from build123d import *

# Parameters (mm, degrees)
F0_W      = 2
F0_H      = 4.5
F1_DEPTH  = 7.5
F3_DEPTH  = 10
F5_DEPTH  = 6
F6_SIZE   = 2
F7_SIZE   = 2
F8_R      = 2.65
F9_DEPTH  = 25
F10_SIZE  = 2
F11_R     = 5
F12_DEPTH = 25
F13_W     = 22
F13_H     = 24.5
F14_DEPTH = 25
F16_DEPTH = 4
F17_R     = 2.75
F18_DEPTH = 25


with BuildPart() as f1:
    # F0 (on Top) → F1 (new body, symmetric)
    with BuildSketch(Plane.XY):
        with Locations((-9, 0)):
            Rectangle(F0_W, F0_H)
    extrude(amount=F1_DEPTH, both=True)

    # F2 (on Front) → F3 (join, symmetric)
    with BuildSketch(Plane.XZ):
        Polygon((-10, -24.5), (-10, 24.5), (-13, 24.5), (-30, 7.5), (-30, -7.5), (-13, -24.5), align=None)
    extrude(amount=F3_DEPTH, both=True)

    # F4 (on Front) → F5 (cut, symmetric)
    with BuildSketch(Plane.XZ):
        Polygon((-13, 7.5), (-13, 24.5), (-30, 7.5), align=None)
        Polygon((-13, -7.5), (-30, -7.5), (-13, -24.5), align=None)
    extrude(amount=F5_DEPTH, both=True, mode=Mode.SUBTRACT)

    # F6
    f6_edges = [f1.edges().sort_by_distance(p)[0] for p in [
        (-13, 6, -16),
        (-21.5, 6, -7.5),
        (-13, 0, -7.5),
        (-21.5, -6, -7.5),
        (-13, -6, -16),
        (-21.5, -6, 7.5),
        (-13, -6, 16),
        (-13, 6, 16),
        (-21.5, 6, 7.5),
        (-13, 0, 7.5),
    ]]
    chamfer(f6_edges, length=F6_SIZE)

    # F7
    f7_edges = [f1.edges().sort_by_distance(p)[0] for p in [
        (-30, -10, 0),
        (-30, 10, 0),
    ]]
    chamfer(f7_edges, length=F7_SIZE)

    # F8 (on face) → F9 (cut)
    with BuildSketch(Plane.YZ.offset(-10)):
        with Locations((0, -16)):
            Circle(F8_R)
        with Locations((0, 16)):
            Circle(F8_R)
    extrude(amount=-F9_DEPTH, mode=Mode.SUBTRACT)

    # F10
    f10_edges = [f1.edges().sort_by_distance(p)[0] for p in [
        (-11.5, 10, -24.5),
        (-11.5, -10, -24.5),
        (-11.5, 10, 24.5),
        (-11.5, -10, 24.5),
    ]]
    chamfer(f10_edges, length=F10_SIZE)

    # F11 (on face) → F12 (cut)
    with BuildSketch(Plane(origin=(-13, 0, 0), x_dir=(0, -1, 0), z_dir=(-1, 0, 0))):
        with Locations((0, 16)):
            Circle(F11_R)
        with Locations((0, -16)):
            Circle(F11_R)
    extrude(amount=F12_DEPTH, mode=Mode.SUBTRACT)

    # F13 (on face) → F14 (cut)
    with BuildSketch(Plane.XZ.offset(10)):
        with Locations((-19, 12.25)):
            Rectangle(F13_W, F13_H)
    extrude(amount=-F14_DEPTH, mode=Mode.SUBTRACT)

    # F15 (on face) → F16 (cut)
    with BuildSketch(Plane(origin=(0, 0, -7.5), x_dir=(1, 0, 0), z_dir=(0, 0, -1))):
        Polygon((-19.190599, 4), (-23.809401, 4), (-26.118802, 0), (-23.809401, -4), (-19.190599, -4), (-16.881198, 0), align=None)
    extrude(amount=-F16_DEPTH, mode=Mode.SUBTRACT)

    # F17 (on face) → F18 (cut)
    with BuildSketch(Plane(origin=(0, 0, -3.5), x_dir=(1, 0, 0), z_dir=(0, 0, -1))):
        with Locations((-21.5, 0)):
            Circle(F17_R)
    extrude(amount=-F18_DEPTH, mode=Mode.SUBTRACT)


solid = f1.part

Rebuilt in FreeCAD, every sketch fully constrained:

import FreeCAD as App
import Part
import Sketcher
Q = App.Units.Quantity


def edges_at(feature, points):
    """Names of the edges that pass closest to the given points."""
    edges = feature.Shape.Edges
    near = lambda p: min(range(len(edges)), key=lambda i: edges[i].distToShape(Part.Vertex(*p))[0])
    return sorted({f"Edge{near(p) + 1}" for p in points})

doc = App.newDocument("Part")
body = doc.addObject("PartDesign::Body", "Body")

# Sketch on XY plane
sketch1 = doc.addObject("Sketcher::SketchObject", "Sketch")
body.addObject(sketch1)
sketch1.AttachmentSupport = (doc.XY_Plane, [""])
sketch1.MapMode = "FlatFace"
sketch1.addGeometry([
    Part.LineSegment(App.Vector(-10, 2.2, 0), App.Vector(-10, -2.2, 0)),
    Part.LineSegment(App.Vector(-10, -2.2, 0), App.Vector(-8, -2.2, 0)),
    Part.LineSegment(App.Vector(-8, -2.2, 0), App.Vector(-8, 2.2, 0)),
    Part.LineSegment(App.Vector(-8, 2.2, 0), App.Vector(-10, 2.2, 0)),
], False)
sketch1.addConstraint([
    Sketcher.Constraint("Coincident", 0, 2, 1, 1),
    Sketcher.Constraint("Coincident", 1, 2, 2, 1),
    Sketcher.Constraint("Coincident", 2, 2, 3, 1),
    Sketcher.Constraint("Coincident", 3, 2, 0, 1),
    Sketcher.Constraint("Vertical", 0),
    Sketcher.Constraint("Horizontal", 1),
    Sketcher.Constraint("Vertical", 2),
    Sketcher.Constraint("Horizontal", 3),
    Sketcher.Constraint("DistanceX", 1, 1, 1, 2, Q("2 mm")),
    Sketcher.Constraint("DistanceY", 0, 2, 0, 1, Q("4.5 mm")),
    Sketcher.Constraint("DistanceX", 0, 2, -1, 1, Q("10 mm")),
    Sketcher.Constraint("DistanceY", 0, 2, -1, 1, Q("2.25 mm")),
])
pad1 = doc.addObject("PartDesign::Pad", "Pad")
body.addObject(pad1)
pad1.Profile = sketch1
pad1.Length = 15
pad1.Midplane = True

# Sketch on XZ plane
sketch2 = doc.addObject("Sketcher::SketchObject", "Sketch001")
body.addObject(sketch2)
sketch2.AttachmentSupport = (doc.XZ_Plane, [""])
sketch2.MapMode = "FlatFace"
sketch2.addGeometry([
    Part.LineSegment(App.Vector(-10, -24.5, 0), App.Vector(-10, 24.5, 0)),  # 0
    Part.LineSegment(App.Vector(-10, 24.5, 0), App.Vector(-13, 24.5, 0)),  # 1
    Part.LineSegment(App.Vector(-13, 24.5, 0), App.Vector(-30, 7.5, 0)),  # 2
    Part.LineSegment(App.Vector(-30, 7.5, 0), App.Vector(-30, -7.5, 0)),  # 3
    Part.LineSegment(App.Vector(-30, -7.5, 0), App.Vector(-13, -24.5, 0)),  # 4
    Part.LineSegment(App.Vector(-13, -24.5, 0), App.Vector(-10, -24.5, 0)),  # 5
], False)
sketch2.addConstraint([
    Sketcher.Constraint("Coincident", 0, 2, 1, 1),
    Sketcher.Constraint("Coincident", 1, 2, 2, 1),
    Sketcher.Constraint("Coincident", 2, 2, 3, 1),
    Sketcher.Constraint("Coincident", 3, 2, 4, 1),
    Sketcher.Constraint("Coincident", 4, 2, 5, 1),
    Sketcher.Constraint("Coincident", 5, 2, 0, 1),
    Sketcher.Constraint("Vertical", 0),
    Sketcher.Constraint("Horizontal", 1),
    Sketcher.Constraint("Vertical", 3),
    Sketcher.Constraint("Horizontal", 5),
    Sketcher.Constraint("Symmetric", 1, 2, 4, 2, -1),
    Sketcher.Constraint("Perpendicular", 2, 4),
    Sketcher.Constraint("Equal", 2, 4),
    Sketcher.Constraint("DistanceX", 1, 2, 1, 1, Q("3 mm")),
    Sketcher.Constraint("DistanceY", 0, 1, 0, 2, Q("49 mm")),
    Sketcher.Constraint("DistanceY", 3, 2, 3, 1, Q("15 mm")),
    Sketcher.Constraint("DistanceX", 0, 2, -1, 1, Q("10 mm")),
])
pad2 = doc.addObject("PartDesign::Pad", "Pad001")
body.addObject(pad2)
pad2.Profile = sketch2
pad2.Length = 20
pad2.Midplane = True

# Sketch on XZ plane
sketch3 = doc.addObject("Sketcher::SketchObject", "Sketch002")
body.addObject(sketch3)
sketch3.AttachmentSupport = (doc.XZ_Plane, [""])
sketch3.MapMode = "FlatFace"
sketch3.addGeometry([
    Part.LineSegment(App.Vector(-13, 8, 0), App.Vector(-13, 24, 0)),  # 0
    Part.LineSegment(App.Vector(-13, 24, 0), App.Vector(-30, 8, 0)),  # 1
    Part.LineSegment(App.Vector(-30, 8, 0), App.Vector(-13, 8, 0)),  # 2
    Part.LineSegment(App.Vector(-13, -8, 0), App.Vector(-30, -8, 0)),  # 3
    Part.LineSegment(App.Vector(-30, -8, 0), App.Vector(-13, -24, 0)),  # 4
    Part.LineSegment(App.Vector(-13, -24, 0), App.Vector(-13, -8, 0)),  # 5
], False)
sketch3.addConstraint([
    Sketcher.Constraint("Coincident", 0, 2, 1, 1),
    Sketcher.Constraint("Coincident", 1, 2, 2, 1),
    Sketcher.Constraint("Coincident", 2, 2, 0, 1),
    Sketcher.Constraint("Coincident", 3, 2, 4, 1),
    Sketcher.Constraint("Coincident", 4, 2, 5, 1),
    Sketcher.Constraint("Coincident", 5, 2, 3, 1),
    Sketcher.Constraint("Vertical", 0),
    Sketcher.Constraint("Horizontal", 2),
    Sketcher.Constraint("Horizontal", 3),
    Sketcher.Constraint("Vertical", 5),
    Sketcher.Constraint("Symmetric", 1, 2, 3, 2, -1),
    Sketcher.Constraint("Symmetric", 0, 2, 4, 2, -1),
    Sketcher.Constraint("Perpendicular", 1, 4),
    Sketcher.Constraint("DistanceX", 2, 1, 2, 2, Q("17 mm")),
    Sketcher.Constraint("DistanceX", 0, 2, -1, 1, Q("13 mm")),
    Sketcher.Constraint("DistanceY", 3, 2, 1, 2, Q("15 mm")),
])
pocket1 = doc.addObject("PartDesign::Pocket", "Pocket")
body.addObject(pocket1)
pocket1.Profile = sketch3
pocket1.Length = 12
pocket1.Midplane = True
doc.recompute()

chamfer = doc.addObject("PartDesign::Chamfer", "Chamfer")
body.addObject(chamfer)
chamfer.Base = (pocket1, edges_at(pocket1, [
    (-13, 6, -16),
    (-21.5, 6, -7.5),
    (-13, 0, -7.5),
    (-21.5, -6, -7.5),
    (-13, -6, -16),
    (-21.5, -6, 7.5),
    (-13, -6, 16),
    (-13, 6, 16),
    (-21.5, 6, 7.5),
    (-13, 0, 7.5),
]))
chamfer.Size = 2
doc.recompute()

chamfer2 = doc.addObject("PartDesign::Chamfer", "Chamfer001")
body.addObject(chamfer2)
chamfer2.Base = (chamfer, edges_at(chamfer, [(-30, -10, 0), (-30, 10, 0)]))
chamfer2.Size = 2

# Sketch on YZ plane
sketch4 = doc.addObject("Sketcher::SketchObject", "Sketch003")
body.addObject(sketch4)
sketch4.AttachmentSupport = (doc.YZ_Plane, [""])
sketch4.MapMode = "FlatFace"
sketch4.AttachmentOffset = App.Placement(App.Vector(0, 0, -10), App.Rotation())
sketch4.addGeometry([
    Part.Circle(App.Vector(0, -16, 0), App.Vector(0, 0, 1), 2.6),
    Part.Circle(App.Vector(0, 16, 0), App.Vector(0, 0, 1), 2.6),
], False)
sketch4.addConstraint([
    Sketcher.Constraint("Equal", 0, 1),
    Sketcher.Constraint("Symmetric", 0, 3, 1, 3, -1, 1),
    Sketcher.Constraint("PointOnObject", 0, 3, -2),
    Sketcher.Constraint("Diameter", 0, Q("5.3 mm")),
    Sketcher.Constraint("DistanceY", 0, 3, -1, 1, Q("16 mm")),
])
pocket2 = doc.addObject("PartDesign::Pocket", "Pocket001")
body.addObject(pocket2)
pocket2.Profile = sketch4
pocket2.Length = 25
doc.recompute()

chamfer3 = doc.addObject("PartDesign::Chamfer", "Chamfer002")
body.addObject(chamfer3)
chamfer3.Base = (pocket2, edges_at(pocket2, [
    (-11.5, 10, -24.5),
    (-11.5, -10, -24.5),
    (-11.5, 10, 24.5),
    (-11.5, -10, 24.5),
]))
chamfer3.Size = 2

# Sketch on YZ plane
sketch5 = doc.addObject("Sketcher::SketchObject", "Sketch004")
body.addObject(sketch5)
sketch5.AttachmentSupport = (doc.YZ_Plane, [""])
sketch5.MapMode = "FlatFace"
sketch5.AttachmentOffset = App.Placement(App.Vector(0, 0, -13), App.Rotation())
sketch5.addGeometry([
    Part.Circle(App.Vector(0, 16, 0), App.Vector(0, 0, 1), 5),
    Part.Circle(App.Vector(0, -16, 0), App.Vector(0, 0, 1), 5),
], False)
sketch5.addConstraint([
    Sketcher.Constraint("Equal", 0, 1),
    Sketcher.Constraint("Symmetric", 0, 3, 1, 3, -1, 1),
    Sketcher.Constraint("PointOnObject", 0, 3, -2),
    Sketcher.Constraint("Diameter", 0, Q("10 mm")),
    Sketcher.Constraint("DistanceY", -1, 1, 0, 3, Q("16 mm")),
])
pocket3 = doc.addObject("PartDesign::Pocket", "Pocket002")
body.addObject(pocket3)
pocket3.Profile = sketch5
pocket3.Length = 25

# Sketch on XZ plane
sketch6 = doc.addObject("Sketcher::SketchObject", "Sketch005")
body.addObject(sketch6)
sketch6.AttachmentSupport = (doc.XZ_Plane, [""])
sketch6.MapMode = "FlatFace"
sketch6.AttachmentOffset = App.Placement(App.Vector(0, 0, 10), App.Rotation())
sketch6.addGeometry([
    Part.LineSegment(App.Vector(-30, 24, 0), App.Vector(-30, 0, 0)),
    Part.LineSegment(App.Vector(-30, 0, 0), App.Vector(-8, 0, 0)),
    Part.LineSegment(App.Vector(-8, 0, 0), App.Vector(-8, 24, 0)),
    Part.LineSegment(App.Vector(-8, 24, 0), App.Vector(-30, 24, 0)),
], False)
sketch6.addConstraint([
    Sketcher.Constraint("Coincident", 0, 2, 1, 1),
    Sketcher.Constraint("Coincident", 1, 2, 2, 1),
    Sketcher.Constraint("Coincident", 2, 2, 3, 1),
    Sketcher.Constraint("Coincident", 3, 2, 0, 1),
    Sketcher.Constraint("Vertical", 0),
    Sketcher.Constraint("Horizontal", 1),
    Sketcher.Constraint("Vertical", 2),
    Sketcher.Constraint("Horizontal", 3),
    Sketcher.Constraint("PointOnObject", 0, 2, -1),
    Sketcher.Constraint("DistanceX", 1, 1, 1, 2, Q("22 mm")),
    Sketcher.Constraint("DistanceY", 0, 2, 0, 1, Q("24.5 mm")),
    Sketcher.Constraint("DistanceX", 0, 2, -1, 1, Q("30 mm")),
])
pocket4 = doc.addObject("PartDesign::Pocket", "Pocket003")
body.addObject(pocket4)
pocket4.Profile = sketch6
pocket4.Length = 25

# Sketch on XY plane
sketch7 = doc.addObject("Sketcher::SketchObject", "Sketch006")
body.addObject(sketch7)
sketch7.AttachmentSupport = (doc.XY_Plane, [""])
sketch7.MapMode = "FlatFace"
sketch7.AttachmentOffset = App.Placement(App.Vector(0, 0, -7.5), App.Rotation())
sketch7.addGeometry([
    Part.LineSegment(App.Vector(-19.2, -4, 0), App.Vector(-23.8, -4, 0)),  # 0
    Part.LineSegment(App.Vector(-23.8, -4, 0), App.Vector(-26.1, 0, 0)),  # 1
    Part.LineSegment(App.Vector(-26.1, 0, 0), App.Vector(-23.8, 4, 0)),  # 2
    Part.LineSegment(App.Vector(-23.8, 4, 0), App.Vector(-19.2, 4, 0)),  # 3
    Part.LineSegment(App.Vector(-19.2, 4, 0), App.Vector(-16.9, 0, 0)),  # 4
    Part.LineSegment(App.Vector(-16.9, 0, 0), App.Vector(-19.2, -4, 0)),  # 5
], False)
sketch7.addConstraint([
    Sketcher.Constraint("Coincident", 0, 2, 1, 1),
    Sketcher.Constraint("Coincident", 1, 2, 2, 1),
    Sketcher.Constraint("Coincident", 2, 2, 3, 1),
    Sketcher.Constraint("Coincident", 3, 2, 4, 1),
    Sketcher.Constraint("Coincident", 4, 2, 5, 1),
    Sketcher.Constraint("Coincident", 5, 2, 0, 1),
    Sketcher.Constraint("Horizontal", 0),
    Sketcher.Constraint("Horizontal", 3),
    Sketcher.Constraint("Symmetric", 0, 2, 2, 2, -1),
    Sketcher.Constraint("PointOnObject", 1, 2, -1),
    Sketcher.Constraint("PointOnObject", 4, 2, -1),
    Sketcher.Constraint("Parallel", 1, 4),
    Sketcher.Constraint("Parallel", 2, 5),
    Sketcher.Constraint("Angle", 1, Q("119.999999 deg")),
    Sketcher.Constraint("DistanceY", 0, 2, -1, 1, Q("4 mm")),
    Sketcher.Constraint("DistanceX", 0, 2, -1, 1, Q("23.809401 mm")),
    Sketcher.Constraint("DistanceX", 3, 2, -1, 1, Q("19.190599 mm")),
])
pocket5 = doc.addObject("PartDesign::Pocket", "Pocket004")
body.addObject(pocket5)
pocket5.Profile = sketch7
pocket5.Length = 4
pocket5.Reversed = True

# Sketch on XY plane
sketch8 = doc.addObject("Sketcher::SketchObject", "Sketch007")
body.addObject(sketch8)
sketch8.AttachmentSupport = (doc.XY_Plane, [""])
sketch8.MapMode = "FlatFace"
sketch8.AttachmentOffset = App.Placement(App.Vector(0, 0, -3.5), App.Rotation())
sketch8.addGeometry(Part.Circle(App.Vector(-21.5, 0, 0), App.Vector(0, 0, 1), 2.8), False)
sketch8.addConstraint([
    Sketcher.Constraint("PointOnObject", 0, 3, -1),
    Sketcher.Constraint("Diameter", 0, Q("5.5 mm")),
    Sketcher.Constraint("DistanceX", 0, 3, -1, 1, Q("21.5 mm")),
])
pocket6 = doc.addObject("PartDesign::Pocket", "Pocket005")
body.addObject(pocket6)
pocket6.Profile = sketch8
pocket6.Length = 25
pocket6.Reversed = True

doc.recompute()
